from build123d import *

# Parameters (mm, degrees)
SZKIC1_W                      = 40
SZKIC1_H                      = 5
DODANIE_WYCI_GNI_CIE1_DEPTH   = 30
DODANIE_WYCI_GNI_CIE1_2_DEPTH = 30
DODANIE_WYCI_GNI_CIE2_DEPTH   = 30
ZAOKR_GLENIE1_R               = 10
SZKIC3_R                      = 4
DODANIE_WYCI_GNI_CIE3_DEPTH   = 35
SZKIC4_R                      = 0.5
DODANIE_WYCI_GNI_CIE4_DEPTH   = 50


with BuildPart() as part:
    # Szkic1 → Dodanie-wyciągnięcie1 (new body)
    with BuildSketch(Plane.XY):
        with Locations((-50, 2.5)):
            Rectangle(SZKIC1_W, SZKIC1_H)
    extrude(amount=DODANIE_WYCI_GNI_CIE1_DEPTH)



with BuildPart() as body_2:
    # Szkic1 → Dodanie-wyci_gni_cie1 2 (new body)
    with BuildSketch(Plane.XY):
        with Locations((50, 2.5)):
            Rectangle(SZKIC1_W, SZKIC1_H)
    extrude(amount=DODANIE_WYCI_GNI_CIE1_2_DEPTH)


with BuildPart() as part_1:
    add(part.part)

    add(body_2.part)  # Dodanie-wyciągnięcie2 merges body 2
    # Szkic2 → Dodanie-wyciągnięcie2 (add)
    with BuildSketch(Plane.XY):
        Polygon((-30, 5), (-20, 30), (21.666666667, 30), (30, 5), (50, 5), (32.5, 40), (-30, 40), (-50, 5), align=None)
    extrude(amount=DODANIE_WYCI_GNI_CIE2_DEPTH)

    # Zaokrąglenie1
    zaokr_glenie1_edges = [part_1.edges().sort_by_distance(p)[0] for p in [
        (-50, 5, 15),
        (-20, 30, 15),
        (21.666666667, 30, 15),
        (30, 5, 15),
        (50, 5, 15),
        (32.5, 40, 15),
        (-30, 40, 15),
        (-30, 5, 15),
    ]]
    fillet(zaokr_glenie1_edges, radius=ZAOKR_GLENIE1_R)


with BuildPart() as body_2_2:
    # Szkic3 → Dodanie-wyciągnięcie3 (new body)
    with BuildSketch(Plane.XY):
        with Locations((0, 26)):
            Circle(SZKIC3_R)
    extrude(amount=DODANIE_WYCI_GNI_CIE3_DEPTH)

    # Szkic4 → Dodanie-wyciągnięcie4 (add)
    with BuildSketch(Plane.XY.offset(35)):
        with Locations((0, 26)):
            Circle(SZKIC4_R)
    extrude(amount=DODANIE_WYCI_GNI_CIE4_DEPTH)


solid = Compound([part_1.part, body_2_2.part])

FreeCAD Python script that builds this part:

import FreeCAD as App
import Part
import Sketcher
from FreeCAD import Vector


def edges_at(feature, points):
    """Names of the edges that pass closest to the given points."""
    edges = feature.Shape.Edges
    near = lambda p: min(range(len(edges)), key=lambda i: edges[i].distToShape(Part.Vertex(*p))[0])
    return sorted({f"Edge{near(p) + 1}" for p in points})

doc = App.newDocument("Part")
body = doc.addObject("PartDesign::Body", "Body")

# Sketch on XY plane
sketch1 = body.newObject("Sketcher::SketchObject", "Sketch")
sketch1.AttachmentSupport = (doc.getObject("XY_Plane"), [""])
sketch1.MapMode = "FlatFace"
sketch1.addGeometry(Part.LineSegment(Vector(-70, 5, 0), Vector(-70, 0, 0)), False)
sketch1.addGeometry(Part.LineSegment(Vector(-70, 0, 0), Vector(-30, 0, 0)), False)
sketch1.addGeometry(Part.LineSegment(Vector(-30, 0, 0), Vector(-30, 5, 0)), False)
sketch1.addGeometry(Part.LineSegment(Vector(-30, 5, 0), Vector(-70, 5, 0)), False)
sketch1.addConstraint(Sketcher.Constraint("Coincident", 0, 2, 1, 1))
sketch1.addConstraint(Sketcher.Constraint("Coincident", 1, 2, 2, 1))
sketch1.addConstraint(Sketcher.Constraint("Coincident", 2, 2, 3, 1))
sketch1.addConstraint(Sketcher.Constraint("Coincident", 3, 2, 0, 1))
sketch1.addConstraint(Sketcher.Constraint("Vertical", 0))
sketch1.addConstraint(Sketcher.Constraint("Horizontal", 1))
sketch1.addConstraint(Sketcher.Constraint("Vertical", 2))
sketch1.addConstraint(Sketcher.Constraint("Horizontal", 3))
sketch1.addConstraint(Sketcher.Constraint("PointOnObject", 0, 2, -1))
sketch1.addConstraint(Sketcher.Constraint("DistanceX", 1, 1, 1, 2, 40.0))
sketch1.addConstraint(Sketcher.Constraint("DistanceY", 0, 2, 0, 1, 5.0))
sketch1.addConstraint(Sketcher.Constraint("DistanceX", 0, 2, -1, 1, 70.0))
pad1 = body.newObject("PartDesign::Pad", "Pad")
pad1.Profile = sketch1
pad1.Length = 30
body2 = doc.addObject("PartDesign::Body", "Body001")

# Sketch on XY plane
sketch2 = body2.newObject("Sketcher::SketchObject", "Sketch001")
sketch2.AttachmentSupport = (doc.getObject("XY_Plane001"), [""])
sketch2.MapMode = "FlatFace"
sketch2.addGeometry(Part.LineSegment(Vector(30, 5, 0), Vector(30, 0, 0)), False)
sketch2.addGeometry(Part.LineSegment(Vector(30, 0, 0), Vector(70, 0, 0)), False)
sketch2.addGeometry(Part.LineSegment(Vector(70, 0, 0), Vector(70, 5, 0)), False)
sketch2.addGeometry(Part.LineSegment(Vector(70, 5, 0), Vector(30, 5, 0)), False)
sketch2.addConstraint(Sketcher.Constraint("Coincident", 0, 2, 1, 1))
sketch2.addConstraint(Sketcher.Constraint("Coincident", 1, 2, 2, 1))
sketch2.addConstraint(Sketcher.Constraint("Coincident", 2, 2, 3, 1))
sketch2.addConstraint(Sketcher.Constraint("Coincident", 3, 2, 0, 1))
sketch2.addConstraint(Sketcher.Constraint("Vertical", 0))
sketch2.addConstraint(Sketcher.Constraint("Horizontal", 1))
sketch2.addConstraint(Sketcher.Constraint("Vertical", 2))
sketch2.addConstraint(Sketcher.Constraint("Horizontal", 3))
sketch2.addConstraint(Sketcher.Constraint("PointOnObject", 0, 2, -1))
sketch2.addConstraint(Sketcher.Constraint("DistanceX", 1, 1, 1, 2, 40.0))
sketch2.addConstraint(Sketcher.Constraint("DistanceY", 0, 2, 0, 1, 5.0))
sketch2.addConstraint(Sketcher.Constraint("DistanceX", -1, 1, 0, 2, 30.0))
pad2 = body2.newObject("PartDesign::Pad", "Pad001")
pad2.Profile = sketch2
pad2.Length = 30
body.AllowCompound = True
doc.recompute()

boolean = body.newObject("PartDesign::Boolean", "Boolean")
boolean.Type = "Fuse"
boolean.addObjects([body2])

# Sketch on XY plane
sketch3 = body.newObject("Sketcher::SketchObject", "Sketch002")
sketch3.AttachmentSupport = (doc.getObject("XY_Plane"), [""])
sketch3.MapMode = "FlatFace"
sketch3.addGeometry(Part.LineSegment(Vector(-30, 5, 0), Vector(-20, 30, 0)), False)
sketch3.addGeometry(Part.LineSegment(Vector(-20, 30, 0), Vector(21.666667, 30, 0)), False)
sketch3.addGeometry(Part.LineSegment(Vector(21.666667, 30, 0), Vector(30, 5, 0)), False)
sketch3.addGeometry(Part.LineSegment(Vector(30, 5, 0), Vector(50, 5, 0)), False)
sketch3.addGeometry(Part.LineSegment(Vector(50, 5, 0), Vector(32.5, 40, 0)), False)
sketch3.addGeometry(Part.LineSegment(Vector(32.5, 40, 0), Vector(-30, 40, 0)), False)
sketch3.addGeometry(Part.LineSegment(Vector(-30, 40, 0), Vector(-50, 5, 0)), False)
sketch3.addGeometry(Part.LineSegment(Vector(-50, 5, 0), Vector(-30, 5, 0)), False)
sketch3.addConstraint(Sketcher.Constraint("Coincident", 0, 2, 1, 1))
sketch3.addConstraint(Sketcher.Constraint("Coincident", 1, 2, 2, 1))
sketch3.addConstraint(Sketcher.Constraint("Coincident", 2, 2, 3, 1))
sketch3.addConstraint(Sketcher.Constraint("Coincident", 3, 2, 4, 1))
sketch3.addConstraint(Sketcher.Constraint("Coincident", 4, 2, 5, 1))
sketch3.addConstraint(Sketcher.Constraint("Coincident", 5, 2, 6, 1))
sketch3.addConstraint(Sketcher.Constraint("Coincident", 6, 2, 7, 1))
sketch3.addConstraint(Sketcher.Constraint("Coincident", 7, 2, 0, 1))
sketch3.addConstraint(Sketcher.Constraint("Horizontal", 1))
sketch3.addConstraint(Sketcher.Constraint("Horizontal", 3))
sketch3.addConstraint(Sketcher.Constraint("Horizontal", 5))
sketch3.addConstraint(Sketcher.Constraint("Horizontal", 7))
sketch3.addConstraint(Sketcher.Constraint("Symmetric", 3, 2, 6, 2, -2))
sketch3.addConstraint(Sketcher.Constraint("Vertical", 5, 2, 7, 2))
sketch3.addConstraint(Sketcher.Constraint("Equal", 3, 7))
sketch3.addConstraint(Sketcher.Constraint("DistanceX", 3, 1, 3, 2, 20.0))
sketch3.addConstraint(Sketcher.Constraint("DistanceX", 5, 2, 5, 1, 62.5))
sketch3.addConstraint(Sketcher.Constraint("DistanceX", 0, 2, -1, 1, 20.0))
sketch3.addConstraint(Sketcher.Constraint("DistanceY", -1, 1, 0, 2, 30.0))
sketch3.addConstraint(Sketcher.Constraint("DistanceX", -1, 1, 2, 2, 30.0))
sketch3.addConstraint(Sketcher.Constraint("DistanceY", -1, 1, 2, 2, 5.0))
sketch3.addConstraint(Sketcher.Constraint("DistanceY", -1, 1, 4, 2, 40.0))
sketch3.addConstraint(Sketcher.Constraint("DistanceX", 1, 1, 1, 2, 41.666667))
pad3 = body.newObject("PartDesign::Pad", "Pad002")
pad3.Profile = sketch3
pad3.Length = 30
doc.recompute()

fillet = body.newObject("PartDesign::Fillet", "Fillet")
fillet.Base = (pad3, edges_at(pad3, [
    (-50, 5, 15),
    (-20, 30, 15),
    (21.667, 30, 15),
    (30, 5, 15),
    (50, 5, 15),
    (32.5, 40, 15),
    (-30, 40, 15),
    (-30, 5, 15),
]))
fillet.Radius = 10
body3 = doc.addObject("PartDesign::Body", "Body002")

# Sketch on XY plane
sketch4 = body3.newObject("Sketcher::SketchObject", "Sketch003")
sketch4.AttachmentSupport = (doc.getObject("XY_Plane002"), [""])
sketch4.MapMode = "FlatFace"
sketch4.addGeometry(Part.Circle(Vector(0, 26, 0), Vector(0, 0, 1), 4), False)
sketch4.addConstraint(Sketcher.Constraint("PointOnObject", 0, 3, -2))
sketch4.addConstraint(Sketcher.Constraint("Diameter", 0, 8.0))
sketch4.addConstraint(Sketcher.Constraint("DistanceY", -1, 1, 0, 3, 26.0))
pad4 = body3.newObject("PartDesign::Pad", "Pad003")
pad4.Profile = sketch4
pad4.Length = 35

# Sketch on XY plane
sketch5 = body3.newObject("Sketcher::SketchObject", "Sketch004")
sketch5.AttachmentSupport = (doc.getObject("XY_Plane002"), [""])
sketch5.MapMode = "FlatFace"
sketch5.AttachmentOffset = App.Placement(Vector(0, 0, 35), App.Rotation())
sketch5.addGeometry(Part.Circle(Vector(0, 26, 0), Vector(0, 0, 1), 0.5), False)
sketch5.addConstraint(Sketcher.Constraint("PointOnObject", 0, 3, -2))
sketch5.addConstraint(Sketcher.Constraint("Diameter", 0, 1.0))
sketch5.addConstraint(Sketcher.Constraint("DistanceY", -1, 1, 0, 3, 26.0))
pad5 = body3.newObject("PartDesign::Pad", "Pad004")
pad5.Profile = sketch5
pad5.Length = 50

doc.recompute()
